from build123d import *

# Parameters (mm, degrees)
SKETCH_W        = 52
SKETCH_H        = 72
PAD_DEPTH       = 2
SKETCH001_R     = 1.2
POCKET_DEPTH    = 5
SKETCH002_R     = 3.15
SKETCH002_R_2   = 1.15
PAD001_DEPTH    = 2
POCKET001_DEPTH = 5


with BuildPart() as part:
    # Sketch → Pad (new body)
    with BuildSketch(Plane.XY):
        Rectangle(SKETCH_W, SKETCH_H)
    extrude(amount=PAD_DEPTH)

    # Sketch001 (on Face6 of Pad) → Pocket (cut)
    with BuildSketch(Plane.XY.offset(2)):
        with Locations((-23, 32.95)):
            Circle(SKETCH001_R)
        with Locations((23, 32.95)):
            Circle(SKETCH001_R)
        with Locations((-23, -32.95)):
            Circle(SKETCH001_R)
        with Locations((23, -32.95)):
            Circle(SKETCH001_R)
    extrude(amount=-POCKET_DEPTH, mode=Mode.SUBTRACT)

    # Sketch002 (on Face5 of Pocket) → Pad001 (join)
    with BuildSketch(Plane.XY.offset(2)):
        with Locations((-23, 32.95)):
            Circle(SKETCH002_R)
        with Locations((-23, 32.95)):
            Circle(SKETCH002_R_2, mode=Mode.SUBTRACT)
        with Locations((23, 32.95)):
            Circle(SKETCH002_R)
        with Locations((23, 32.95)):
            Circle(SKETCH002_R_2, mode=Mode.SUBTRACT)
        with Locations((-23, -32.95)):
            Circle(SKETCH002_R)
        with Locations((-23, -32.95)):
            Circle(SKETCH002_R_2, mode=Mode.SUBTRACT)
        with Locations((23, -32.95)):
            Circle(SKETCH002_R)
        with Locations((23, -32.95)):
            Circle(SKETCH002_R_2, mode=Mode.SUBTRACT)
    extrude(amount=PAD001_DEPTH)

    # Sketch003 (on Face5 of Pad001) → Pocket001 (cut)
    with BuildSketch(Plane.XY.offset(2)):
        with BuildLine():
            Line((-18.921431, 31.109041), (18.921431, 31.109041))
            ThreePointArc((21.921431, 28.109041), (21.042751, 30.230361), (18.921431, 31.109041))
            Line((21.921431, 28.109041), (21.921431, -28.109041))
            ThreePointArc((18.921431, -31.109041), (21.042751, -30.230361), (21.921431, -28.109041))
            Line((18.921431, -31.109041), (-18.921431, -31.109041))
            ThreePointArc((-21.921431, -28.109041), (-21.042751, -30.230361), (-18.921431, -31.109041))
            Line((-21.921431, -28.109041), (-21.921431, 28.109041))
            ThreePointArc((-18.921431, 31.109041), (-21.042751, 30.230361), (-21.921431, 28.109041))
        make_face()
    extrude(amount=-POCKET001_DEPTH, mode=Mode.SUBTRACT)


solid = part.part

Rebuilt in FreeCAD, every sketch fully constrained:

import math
import FreeCAD as App
import Part
import Sketcher

V = App.Vector
Q = App.Units.Quantity

doc = App.newDocument("Part")
body = doc.addObject("PartDesign::Body", "Body")

sketch1 = body.newObject("Sketcher::SketchObject", "Sketch")
sketch1.AttachmentSupport = (doc.getObject("XY_Plane"), [""])
sketch1.MapMode = "FlatFace"
sketch1.addGeometry([
    Part.LineSegment(V(-26, 36, 0), V(-26, -36, 0)),
    Part.LineSegment(V(-26, -36, 0), V(26, -36, 0)),
    Part.LineSegment(V(26, -36, 0), V(26, 36, 0)),
    Part.LineSegment(V(26, 36, 0), V(-26, 36, 0)),
], False)
sketch1.addConstraint([
    Sketcher.Constraint("Coincident", 0, 2, 1, 1),
    Sketcher.Constraint("Coincident", 1, 2, 2, 1),
    Sketcher.Constraint("Coincident", 2, 2, 3, 1),
    Sketcher.Constraint("Coincident", 3, 2, 0, 1),
    Sketcher.Constraint("Vertical", 0),
    Sketcher.Constraint("Horizontal", 1),
    Sketcher.Constraint("Vertical", 2),
    Sketcher.Constraint("Horizontal", 3),
    Sketcher.Constraint("Symmetric", 0, 2, 2, 2, -1, 1),
    Sketcher.Constraint("DistanceX", 1, 1, 1, 2, Q("52 mm")),
    Sketcher.Constraint("DistanceY", 0, 2, 0, 1, Q("72 mm")),
])
pad1 = body.newObject("PartDesign::Pad", "Pad")
pad1.Profile = sketch1
pad1.Length = 2

sketch2 = body.newObject("Sketcher::SketchObject", "Sketch001")
sketch2.AttachmentSupport = (doc.getObject("XY_Plane"), [""])
sketch2.MapMode = "FlatFace"
sketch2.AttachmentOffset = App.Placement(V(0, 0, 2), App.Rotation())
sketch2.addGeometry([
    Part.Circle(V(-23, 33, 0), V(0, 0, 1), 1.2),
    Part.Circle(V(23, 33, 0), V(0, 0, 1), 1.2),
    Part.Circle(V(-23, -33, 0), V(0, 0, 1), 1.2),
    Part.Circle(V(23, -33, 0), V(0, 0, 1), 1.2),
], False)
sketch2.addConstraint([
    Sketcher.Constraint("Equal", 0, 1),
    Sketcher.Constraint("Equal", 1, 2),
    Sketcher.Constraint("Equal", 2, 3),
    Sketcher.Constraint("Symmetric", 1, 3, 2, 3, -1, 1),
    Sketcher.Constraint("Symmetric", 0, 3, 3, 3, -1, 1),
    Sketcher.Constraint("Symmetric", 0, 3, 1, 3, -2),
    Sketcher.Constraint("Diameter", 0, Q("2.4 mm")),
    Sketcher.Constraint("DistanceX", 0, 3, -1, 1, Q("23 mm")),
    Sketcher.Constraint("DistanceY", 2, 3, 0, 3, Q("65.9 mm")),
])
pocket1 = body.newObject("PartDesign::Pocket", "Pocket")
pocket1.Profile = sketch2
pocket1.Length = 5

sketch3 = body.newObject("Sketcher::SketchObject", "Sketch002")
sketch3.AttachmentSupport = (doc.getObject("XY_Plane"), [""])
sketch3.MapMode = "FlatFace"
sketch3.AttachmentOffset = App.Placement(V(0, 0, 2), App.Rotation())
sketch3.addGeometry([
    Part.Circle(V(-23, 33, 0), V(0, 0, 1), 3.1),
    Part.Circle(V(-23, 33, 0), V(0, 0, 1), 1.1),
    Part.Circle(V(23, 33, 0), V(0, 0, 1), 3.1),
    Part.Circle(V(23, 33, 0), V(0, 0, 1), 1.1),
    Part.Circle(V(-23, -33, 0), V(0, 0, 1), 3.1),
    Part.Circle(V(-23, -33, 0), V(0, 0, 1), 1.1),
    Part.Circle(V(23, -33, 0), V(0, 0, 1), 3.1),
    Part.Circle(V(23, -33, 0), V(0, 0, 1), 1.1),
], False)
sketch3.addConstraint([
    Sketcher.Constraint("Coincident", 1, 3, 0, 3),
    Sketcher.Constraint("Coincident", 3, 3, 2, 3),
    Sketcher.Constraint("Coincident", 5, 3, 4, 3),
    Sketcher.Constraint("Coincident", 7, 3, 6, 3),
    Sketcher.Constraint("Equal", 0, 2),
    Sketcher.Constraint("Equal", 1, 3),
    Sketcher.Constraint("Equal", 2, 4),
    Sketcher.Constraint("Equal", 3, 5),
    Sketcher.Constraint("Equal", 4, 6),
    Sketcher.Constraint("Equal", 5, 7),
    Sketcher.Constraint("Symmetric", 2, 3, 4, 3, -1, 1),
    Sketcher.Constraint("Symmetric", 0, 3, 6, 3, -1, 1),
    Sketcher.Constraint("Symmetric", 0, 3, 2, 3, -2),
    Sketcher.Constraint("Diameter", 0, Q("6.3 mm")),
    Sketcher.Constraint("Diameter", 1, Q("2.3 mm")),
    Sketcher.Constraint("DistanceX", 0, 3, -1, 1, Q("23 mm")),
    Sketcher.Constraint("DistanceY", 4, 3, 0, 3, Q("65.9 mm")),
])
pad2 = body.newObject("PartDesign::Pad", "Pad001")
pad2.Profile = sketch3
pad2.Length = 2

sketch4 = body.newObject("Sketcher::SketchObject", "Sketch003")
sketch4.AttachmentSupport = (doc.getObject("XY_Plane"), [""])
sketch4.MapMode = "FlatFace"
sketch4.AttachmentOffset = App.Placement(V(0, 0, 2), App.Rotation())
sketch4.addGeometry([
    Part.LineSegment(V(18.9, 31.1, 0), V(-18.9, 31.1, 0)),
    Part.ArcOfCircle(Part.Circle(V(-18.9, 28.1, 0), V(0, 0, 1), 3), math.radians(90), math.radians(180)),
    Part.LineSegment(V(-21.9, 28.1, 0), V(-21.9, -28.1, 0)),
    Part.ArcOfCircle(Part.Circle(V(-18.9, -28.1, 0), V(0, 0, 1), 3), math.radians(-180), math.radians(-90)),
    Part.LineSegment(V(-18.9, -31.1, 0), V(18.9, -31.1, 0)),
    Part.ArcOfCircle(Part.Circle(V(18.9, -28.1, 0), V(0, 0, 1), 3), math.radians(-90), math.radians(0)),
    Part.LineSegment(V(21.9, -28.1, 0), V(21.9, 28.1, 0)),
    Part.ArcOfCircle(Part.Circle(V(18.9, 28.1, 0), V(0, 0, 1), 3), math.radians(0), math.radians(90)),
], False)
sketch4.addConstraint([
    Sketcher.Constraint("Tangent", 0, 2, 1, 1),
    Sketcher.Constraint("Tangent", 1, 2, 2, 1),
    Sketcher.Constraint("Tangent", 2, 2, 3, 1),
    Sketcher.Constraint("Tangent", 3, 2, 4, 1),
    Sketcher.Constraint("Tangent", 4, 2, 5, 1),
    Sketcher.Constraint("Tangent", 5, 2, 6, 1),
    Sketcher.Constraint("Tangent", 6, 2, 7, 1),
    Sketcher.Constraint("Tangent", 7, 2, 0, 1),
    Sketcher.Constraint("Horizontal", 0),
    Sketcher.Constraint("Vertical", 2),
    Sketcher.Constraint("Horizontal", 4),
    Sketcher.Constraint("Vertical", 6),
    Sketcher.Constraint("Equal", 1, 3),
    Sketcher.Constraint("Equal", 3, 5),
    Sketcher.Constraint("Equal", 5, 7),
    Sketcher.Constraint("Symmetric", 1, 3, 5, 3, -1, 1),
    Sketcher.Constraint("Radius", 1, Q("3.000001 mm")),
    Sketcher.Constraint("DistanceX", 0, 2, 0, 1, Q("37.842862 mm")),
    Sketcher.Constraint("DistanceY", 2, 2, 2, 1, Q("56.218082 mm")),
])
pocket2 = body.newObject("PartDesign::Pocket", "Pocket001")
pocket2.Profile = sketch4
pocket2.Length = 5

doc.recompute()
